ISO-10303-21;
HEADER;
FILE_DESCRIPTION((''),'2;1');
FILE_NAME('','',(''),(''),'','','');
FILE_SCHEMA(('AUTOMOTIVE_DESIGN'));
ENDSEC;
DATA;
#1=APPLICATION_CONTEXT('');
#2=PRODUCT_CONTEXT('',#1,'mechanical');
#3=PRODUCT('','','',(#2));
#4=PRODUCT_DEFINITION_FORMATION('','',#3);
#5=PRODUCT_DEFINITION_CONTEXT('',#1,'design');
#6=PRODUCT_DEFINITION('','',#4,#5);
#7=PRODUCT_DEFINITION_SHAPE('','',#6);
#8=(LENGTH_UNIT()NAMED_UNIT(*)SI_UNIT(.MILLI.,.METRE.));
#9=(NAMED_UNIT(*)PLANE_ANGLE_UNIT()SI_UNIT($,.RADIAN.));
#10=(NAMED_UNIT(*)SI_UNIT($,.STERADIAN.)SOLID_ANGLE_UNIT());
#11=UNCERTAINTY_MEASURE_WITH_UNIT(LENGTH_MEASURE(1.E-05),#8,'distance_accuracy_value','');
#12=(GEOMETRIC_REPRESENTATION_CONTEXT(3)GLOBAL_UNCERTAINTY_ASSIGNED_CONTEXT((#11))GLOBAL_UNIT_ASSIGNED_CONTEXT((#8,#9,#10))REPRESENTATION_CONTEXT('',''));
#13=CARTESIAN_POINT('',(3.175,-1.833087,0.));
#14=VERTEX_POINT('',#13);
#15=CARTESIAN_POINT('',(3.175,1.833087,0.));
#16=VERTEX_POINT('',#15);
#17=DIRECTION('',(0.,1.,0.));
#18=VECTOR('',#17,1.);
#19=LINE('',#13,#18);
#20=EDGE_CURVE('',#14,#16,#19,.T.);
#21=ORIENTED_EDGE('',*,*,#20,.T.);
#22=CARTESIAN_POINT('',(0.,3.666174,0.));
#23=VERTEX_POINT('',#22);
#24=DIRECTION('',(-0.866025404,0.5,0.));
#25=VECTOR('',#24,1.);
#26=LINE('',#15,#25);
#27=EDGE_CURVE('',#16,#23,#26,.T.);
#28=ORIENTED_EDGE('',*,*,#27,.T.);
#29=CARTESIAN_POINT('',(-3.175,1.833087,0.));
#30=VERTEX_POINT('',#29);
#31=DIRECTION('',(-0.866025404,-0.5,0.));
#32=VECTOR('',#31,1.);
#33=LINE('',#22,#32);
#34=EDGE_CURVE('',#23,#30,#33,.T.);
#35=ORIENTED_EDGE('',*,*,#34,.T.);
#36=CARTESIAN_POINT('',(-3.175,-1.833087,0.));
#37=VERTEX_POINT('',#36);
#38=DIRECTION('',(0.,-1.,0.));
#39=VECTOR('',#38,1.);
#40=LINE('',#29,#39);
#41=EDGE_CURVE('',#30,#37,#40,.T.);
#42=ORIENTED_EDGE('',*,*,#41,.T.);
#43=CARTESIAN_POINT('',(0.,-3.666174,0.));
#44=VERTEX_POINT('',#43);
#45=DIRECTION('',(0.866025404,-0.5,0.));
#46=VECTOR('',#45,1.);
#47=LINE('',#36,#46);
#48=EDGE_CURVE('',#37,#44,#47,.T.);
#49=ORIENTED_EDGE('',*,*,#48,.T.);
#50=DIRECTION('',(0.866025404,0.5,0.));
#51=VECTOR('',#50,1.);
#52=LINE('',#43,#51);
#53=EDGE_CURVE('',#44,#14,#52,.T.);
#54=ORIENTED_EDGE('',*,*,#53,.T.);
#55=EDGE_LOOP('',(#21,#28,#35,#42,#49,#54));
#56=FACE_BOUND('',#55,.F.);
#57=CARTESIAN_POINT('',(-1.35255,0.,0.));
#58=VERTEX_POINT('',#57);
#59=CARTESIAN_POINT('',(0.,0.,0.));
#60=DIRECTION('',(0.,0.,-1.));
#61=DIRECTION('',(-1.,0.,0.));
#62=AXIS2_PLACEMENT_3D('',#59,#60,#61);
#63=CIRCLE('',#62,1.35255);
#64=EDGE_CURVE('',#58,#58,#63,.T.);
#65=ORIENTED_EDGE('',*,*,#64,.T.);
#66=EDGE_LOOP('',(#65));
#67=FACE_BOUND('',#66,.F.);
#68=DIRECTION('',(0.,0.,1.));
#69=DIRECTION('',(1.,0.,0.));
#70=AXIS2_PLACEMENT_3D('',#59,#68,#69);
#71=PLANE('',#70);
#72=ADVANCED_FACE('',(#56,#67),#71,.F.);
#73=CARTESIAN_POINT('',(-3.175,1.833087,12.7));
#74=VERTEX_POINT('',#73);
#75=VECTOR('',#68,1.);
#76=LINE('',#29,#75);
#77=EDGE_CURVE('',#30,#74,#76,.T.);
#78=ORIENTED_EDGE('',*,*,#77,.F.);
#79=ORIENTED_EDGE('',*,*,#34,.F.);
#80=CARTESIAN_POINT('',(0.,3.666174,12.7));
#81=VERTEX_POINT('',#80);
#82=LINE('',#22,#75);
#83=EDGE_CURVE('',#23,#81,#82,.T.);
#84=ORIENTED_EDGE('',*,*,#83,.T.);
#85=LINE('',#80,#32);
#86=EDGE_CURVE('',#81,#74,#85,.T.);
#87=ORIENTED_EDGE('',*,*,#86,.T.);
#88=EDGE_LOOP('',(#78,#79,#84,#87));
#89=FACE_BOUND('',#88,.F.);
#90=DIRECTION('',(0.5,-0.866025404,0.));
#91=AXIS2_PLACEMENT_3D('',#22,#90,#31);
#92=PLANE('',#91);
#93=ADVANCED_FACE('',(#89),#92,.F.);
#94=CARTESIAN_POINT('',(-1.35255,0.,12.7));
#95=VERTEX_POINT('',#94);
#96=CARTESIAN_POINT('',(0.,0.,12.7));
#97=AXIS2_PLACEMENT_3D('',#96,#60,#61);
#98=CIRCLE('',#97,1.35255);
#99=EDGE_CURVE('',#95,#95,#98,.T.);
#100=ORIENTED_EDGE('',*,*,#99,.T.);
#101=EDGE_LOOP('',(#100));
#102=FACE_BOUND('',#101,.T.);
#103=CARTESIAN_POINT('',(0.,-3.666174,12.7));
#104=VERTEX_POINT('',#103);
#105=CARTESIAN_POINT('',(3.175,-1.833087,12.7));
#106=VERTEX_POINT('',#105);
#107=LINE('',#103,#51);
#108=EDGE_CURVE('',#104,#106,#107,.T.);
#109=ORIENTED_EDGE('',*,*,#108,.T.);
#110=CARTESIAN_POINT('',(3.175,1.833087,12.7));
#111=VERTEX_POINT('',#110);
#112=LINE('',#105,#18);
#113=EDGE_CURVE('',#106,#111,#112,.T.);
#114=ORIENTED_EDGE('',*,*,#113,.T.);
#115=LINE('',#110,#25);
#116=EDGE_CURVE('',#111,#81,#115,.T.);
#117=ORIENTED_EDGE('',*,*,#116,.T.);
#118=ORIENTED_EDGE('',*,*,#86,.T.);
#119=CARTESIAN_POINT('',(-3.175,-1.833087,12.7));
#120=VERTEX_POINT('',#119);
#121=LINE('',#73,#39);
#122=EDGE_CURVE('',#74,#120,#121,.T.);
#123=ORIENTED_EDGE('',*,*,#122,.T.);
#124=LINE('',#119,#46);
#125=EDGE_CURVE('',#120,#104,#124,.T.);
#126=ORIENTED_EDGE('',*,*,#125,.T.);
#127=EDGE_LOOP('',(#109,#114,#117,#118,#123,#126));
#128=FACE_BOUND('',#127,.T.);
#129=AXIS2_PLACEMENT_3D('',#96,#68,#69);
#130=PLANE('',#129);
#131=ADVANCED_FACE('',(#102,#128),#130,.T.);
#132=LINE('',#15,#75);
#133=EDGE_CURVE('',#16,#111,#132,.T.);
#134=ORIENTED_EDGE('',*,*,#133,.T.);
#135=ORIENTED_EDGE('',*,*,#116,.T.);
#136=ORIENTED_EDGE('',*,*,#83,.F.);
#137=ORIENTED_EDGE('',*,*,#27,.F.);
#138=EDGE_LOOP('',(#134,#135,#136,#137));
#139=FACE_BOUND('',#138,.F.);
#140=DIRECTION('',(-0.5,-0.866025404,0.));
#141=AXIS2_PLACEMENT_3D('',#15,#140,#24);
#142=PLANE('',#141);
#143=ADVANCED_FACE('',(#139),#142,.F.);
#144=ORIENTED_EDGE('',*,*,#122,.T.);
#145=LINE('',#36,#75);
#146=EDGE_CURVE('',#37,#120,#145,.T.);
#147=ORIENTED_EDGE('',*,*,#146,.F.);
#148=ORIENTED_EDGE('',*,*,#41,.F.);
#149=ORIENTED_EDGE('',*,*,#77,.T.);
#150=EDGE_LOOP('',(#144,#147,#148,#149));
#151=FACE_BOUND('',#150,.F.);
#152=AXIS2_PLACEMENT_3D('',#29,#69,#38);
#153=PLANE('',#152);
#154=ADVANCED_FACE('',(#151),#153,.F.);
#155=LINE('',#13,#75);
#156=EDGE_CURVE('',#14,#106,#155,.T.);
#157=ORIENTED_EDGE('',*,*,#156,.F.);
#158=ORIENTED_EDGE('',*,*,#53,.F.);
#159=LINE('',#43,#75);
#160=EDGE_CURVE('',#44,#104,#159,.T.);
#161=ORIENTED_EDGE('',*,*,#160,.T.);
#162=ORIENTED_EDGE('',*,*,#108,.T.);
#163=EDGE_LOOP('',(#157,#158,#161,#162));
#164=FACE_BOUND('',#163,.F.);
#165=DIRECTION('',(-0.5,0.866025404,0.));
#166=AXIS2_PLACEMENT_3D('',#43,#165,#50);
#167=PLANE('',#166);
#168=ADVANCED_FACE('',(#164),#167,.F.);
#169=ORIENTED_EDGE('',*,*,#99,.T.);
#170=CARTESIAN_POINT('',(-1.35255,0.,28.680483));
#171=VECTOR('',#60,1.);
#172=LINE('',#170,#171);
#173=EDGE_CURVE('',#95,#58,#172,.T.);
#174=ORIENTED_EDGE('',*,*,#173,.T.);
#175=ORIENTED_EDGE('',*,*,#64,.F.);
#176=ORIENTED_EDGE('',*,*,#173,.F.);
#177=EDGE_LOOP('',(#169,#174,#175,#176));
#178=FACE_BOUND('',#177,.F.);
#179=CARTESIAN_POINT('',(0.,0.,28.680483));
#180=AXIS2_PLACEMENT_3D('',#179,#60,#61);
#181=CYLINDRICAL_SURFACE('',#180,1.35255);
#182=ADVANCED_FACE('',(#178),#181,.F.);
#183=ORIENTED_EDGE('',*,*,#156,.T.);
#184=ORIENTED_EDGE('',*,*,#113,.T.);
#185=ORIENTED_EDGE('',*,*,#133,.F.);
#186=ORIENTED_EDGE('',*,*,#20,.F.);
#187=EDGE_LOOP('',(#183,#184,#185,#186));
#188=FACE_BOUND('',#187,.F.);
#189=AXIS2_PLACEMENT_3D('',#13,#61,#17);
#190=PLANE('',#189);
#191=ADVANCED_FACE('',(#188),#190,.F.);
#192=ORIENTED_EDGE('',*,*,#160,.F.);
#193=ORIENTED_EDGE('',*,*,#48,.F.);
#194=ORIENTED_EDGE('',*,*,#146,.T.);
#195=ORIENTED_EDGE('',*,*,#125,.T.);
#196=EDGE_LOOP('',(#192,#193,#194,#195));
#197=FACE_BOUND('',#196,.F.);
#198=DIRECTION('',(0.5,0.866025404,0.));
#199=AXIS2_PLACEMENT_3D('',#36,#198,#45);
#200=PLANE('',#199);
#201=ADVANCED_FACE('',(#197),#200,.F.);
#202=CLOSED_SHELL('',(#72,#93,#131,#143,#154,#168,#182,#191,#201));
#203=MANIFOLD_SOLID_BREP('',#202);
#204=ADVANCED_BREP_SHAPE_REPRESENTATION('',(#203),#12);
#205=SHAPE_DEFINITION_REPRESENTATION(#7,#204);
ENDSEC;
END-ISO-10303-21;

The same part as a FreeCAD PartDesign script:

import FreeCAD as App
import Part
import Sketcher

V = App.Vector
Q = App.Units.Quantity

doc = App.newDocument("Part")
body = doc.addObject("PartDesign::Body", "Body")

sketch1 = body.newObject("Sketcher::SketchObject", "Sketch")
sketch1.AttachmentSupport = (doc.getObject("XY_Plane"), [""])
sketch1.MapMode = "FlatFace"
sketch1.addGeometry([
    Part.LineSegment(V(0, 3.7, 0), V(-3.2, 1.8, 0)),
    Part.LineSegment(V(-3.2, 1.8, 0), V(-3.2, -1.8, 0)),
    Part.LineSegment(V(-3.2, -1.8, 0), V(0, -3.7, 0)),
    Part.LineSegment(V(0, -3.7, 0), V(3.2, -1.8, 0)),
    Part.LineSegment(V(3.2, -1.8, 0), V(3.2, 1.8, 0)),
    Part.LineSegment(V(3.2, 1.8, 0), V(0, 3.7, 0)),
], False)
sketch1.addConstraint([
    Sketcher.Constraint("Coincident", 0, 2, 1, 1),
    Sketcher.Constraint("Coincident", 1, 2, 2, 1),
    Sketcher.Constraint("Coincident", 2, 2, 3, 1),
    Sketcher.Constraint("Coincident", 3, 2, 4, 1),
    Sketcher.Constraint("Coincident", 4, 2, 5, 1),
    Sketcher.Constraint("Coincident", 5, 2, 0, 1),
    Sketcher.Constraint("Vertical", 1),
    Sketcher.Constraint("Vertical", 4),
    Sketcher.Constraint("Symmetric", 0, 2, 3, 2, -1, 1),
    Sketcher.Constraint("Symmetric", 2, 2, 5, 2, -1, 1),
    Sketcher.Constraint("PointOnObject", 2, 2, -2),
    Sketcher.Constraint("Parallel", 2, 5),
    Sketcher.Constraint("Horizontal", 1, 2, 3, 2),
    Sketcher.Constraint("Angle", 0, Q("-150 deg")),
    Sketcher.Constraint("DistanceX", 1, 2, 3, 2, Q("0.25 in")),
    Sketcher.Constraint("DistanceY", 1, 2, 1, 1, 3.666174),
])
pad1 = body.newObject("PartDesign::Pad", "Pad")
pad1.Profile = sketch1
pad1.Length = Q("0.5 in")

sketch2 = body.newObject("Sketcher::SketchObject", "Sketch001")
sketch2.AttachmentSupport = (doc.getObject("XY_Plane"), [""])
sketch2.MapMode = "FlatFace"
sketch2.AttachmentOffset = App.Placement(V(0, 0, 0.5 * 25.4), App.Rotation())
sketch2.addGeometry(Part.Circle(V(0, 0, 0), V(0, 0, 1), 1.4), False)
sketch2.addConstraint([
    Sketcher.Constraint("Coincident", 0, 3, -1, 1),
    Sketcher.Constraint("Diameter", 0, Q("0.1065 in")),
])
doc.recompute()
hole = body.newObject("PartDesign::Hole", "Hole")
hole.Profile = sketch2
hole.ThreadType = "None"
hole.Diameter = Q("0.1065 in")
hole.DepthType = "ThroughAll"

doc.recompute()
